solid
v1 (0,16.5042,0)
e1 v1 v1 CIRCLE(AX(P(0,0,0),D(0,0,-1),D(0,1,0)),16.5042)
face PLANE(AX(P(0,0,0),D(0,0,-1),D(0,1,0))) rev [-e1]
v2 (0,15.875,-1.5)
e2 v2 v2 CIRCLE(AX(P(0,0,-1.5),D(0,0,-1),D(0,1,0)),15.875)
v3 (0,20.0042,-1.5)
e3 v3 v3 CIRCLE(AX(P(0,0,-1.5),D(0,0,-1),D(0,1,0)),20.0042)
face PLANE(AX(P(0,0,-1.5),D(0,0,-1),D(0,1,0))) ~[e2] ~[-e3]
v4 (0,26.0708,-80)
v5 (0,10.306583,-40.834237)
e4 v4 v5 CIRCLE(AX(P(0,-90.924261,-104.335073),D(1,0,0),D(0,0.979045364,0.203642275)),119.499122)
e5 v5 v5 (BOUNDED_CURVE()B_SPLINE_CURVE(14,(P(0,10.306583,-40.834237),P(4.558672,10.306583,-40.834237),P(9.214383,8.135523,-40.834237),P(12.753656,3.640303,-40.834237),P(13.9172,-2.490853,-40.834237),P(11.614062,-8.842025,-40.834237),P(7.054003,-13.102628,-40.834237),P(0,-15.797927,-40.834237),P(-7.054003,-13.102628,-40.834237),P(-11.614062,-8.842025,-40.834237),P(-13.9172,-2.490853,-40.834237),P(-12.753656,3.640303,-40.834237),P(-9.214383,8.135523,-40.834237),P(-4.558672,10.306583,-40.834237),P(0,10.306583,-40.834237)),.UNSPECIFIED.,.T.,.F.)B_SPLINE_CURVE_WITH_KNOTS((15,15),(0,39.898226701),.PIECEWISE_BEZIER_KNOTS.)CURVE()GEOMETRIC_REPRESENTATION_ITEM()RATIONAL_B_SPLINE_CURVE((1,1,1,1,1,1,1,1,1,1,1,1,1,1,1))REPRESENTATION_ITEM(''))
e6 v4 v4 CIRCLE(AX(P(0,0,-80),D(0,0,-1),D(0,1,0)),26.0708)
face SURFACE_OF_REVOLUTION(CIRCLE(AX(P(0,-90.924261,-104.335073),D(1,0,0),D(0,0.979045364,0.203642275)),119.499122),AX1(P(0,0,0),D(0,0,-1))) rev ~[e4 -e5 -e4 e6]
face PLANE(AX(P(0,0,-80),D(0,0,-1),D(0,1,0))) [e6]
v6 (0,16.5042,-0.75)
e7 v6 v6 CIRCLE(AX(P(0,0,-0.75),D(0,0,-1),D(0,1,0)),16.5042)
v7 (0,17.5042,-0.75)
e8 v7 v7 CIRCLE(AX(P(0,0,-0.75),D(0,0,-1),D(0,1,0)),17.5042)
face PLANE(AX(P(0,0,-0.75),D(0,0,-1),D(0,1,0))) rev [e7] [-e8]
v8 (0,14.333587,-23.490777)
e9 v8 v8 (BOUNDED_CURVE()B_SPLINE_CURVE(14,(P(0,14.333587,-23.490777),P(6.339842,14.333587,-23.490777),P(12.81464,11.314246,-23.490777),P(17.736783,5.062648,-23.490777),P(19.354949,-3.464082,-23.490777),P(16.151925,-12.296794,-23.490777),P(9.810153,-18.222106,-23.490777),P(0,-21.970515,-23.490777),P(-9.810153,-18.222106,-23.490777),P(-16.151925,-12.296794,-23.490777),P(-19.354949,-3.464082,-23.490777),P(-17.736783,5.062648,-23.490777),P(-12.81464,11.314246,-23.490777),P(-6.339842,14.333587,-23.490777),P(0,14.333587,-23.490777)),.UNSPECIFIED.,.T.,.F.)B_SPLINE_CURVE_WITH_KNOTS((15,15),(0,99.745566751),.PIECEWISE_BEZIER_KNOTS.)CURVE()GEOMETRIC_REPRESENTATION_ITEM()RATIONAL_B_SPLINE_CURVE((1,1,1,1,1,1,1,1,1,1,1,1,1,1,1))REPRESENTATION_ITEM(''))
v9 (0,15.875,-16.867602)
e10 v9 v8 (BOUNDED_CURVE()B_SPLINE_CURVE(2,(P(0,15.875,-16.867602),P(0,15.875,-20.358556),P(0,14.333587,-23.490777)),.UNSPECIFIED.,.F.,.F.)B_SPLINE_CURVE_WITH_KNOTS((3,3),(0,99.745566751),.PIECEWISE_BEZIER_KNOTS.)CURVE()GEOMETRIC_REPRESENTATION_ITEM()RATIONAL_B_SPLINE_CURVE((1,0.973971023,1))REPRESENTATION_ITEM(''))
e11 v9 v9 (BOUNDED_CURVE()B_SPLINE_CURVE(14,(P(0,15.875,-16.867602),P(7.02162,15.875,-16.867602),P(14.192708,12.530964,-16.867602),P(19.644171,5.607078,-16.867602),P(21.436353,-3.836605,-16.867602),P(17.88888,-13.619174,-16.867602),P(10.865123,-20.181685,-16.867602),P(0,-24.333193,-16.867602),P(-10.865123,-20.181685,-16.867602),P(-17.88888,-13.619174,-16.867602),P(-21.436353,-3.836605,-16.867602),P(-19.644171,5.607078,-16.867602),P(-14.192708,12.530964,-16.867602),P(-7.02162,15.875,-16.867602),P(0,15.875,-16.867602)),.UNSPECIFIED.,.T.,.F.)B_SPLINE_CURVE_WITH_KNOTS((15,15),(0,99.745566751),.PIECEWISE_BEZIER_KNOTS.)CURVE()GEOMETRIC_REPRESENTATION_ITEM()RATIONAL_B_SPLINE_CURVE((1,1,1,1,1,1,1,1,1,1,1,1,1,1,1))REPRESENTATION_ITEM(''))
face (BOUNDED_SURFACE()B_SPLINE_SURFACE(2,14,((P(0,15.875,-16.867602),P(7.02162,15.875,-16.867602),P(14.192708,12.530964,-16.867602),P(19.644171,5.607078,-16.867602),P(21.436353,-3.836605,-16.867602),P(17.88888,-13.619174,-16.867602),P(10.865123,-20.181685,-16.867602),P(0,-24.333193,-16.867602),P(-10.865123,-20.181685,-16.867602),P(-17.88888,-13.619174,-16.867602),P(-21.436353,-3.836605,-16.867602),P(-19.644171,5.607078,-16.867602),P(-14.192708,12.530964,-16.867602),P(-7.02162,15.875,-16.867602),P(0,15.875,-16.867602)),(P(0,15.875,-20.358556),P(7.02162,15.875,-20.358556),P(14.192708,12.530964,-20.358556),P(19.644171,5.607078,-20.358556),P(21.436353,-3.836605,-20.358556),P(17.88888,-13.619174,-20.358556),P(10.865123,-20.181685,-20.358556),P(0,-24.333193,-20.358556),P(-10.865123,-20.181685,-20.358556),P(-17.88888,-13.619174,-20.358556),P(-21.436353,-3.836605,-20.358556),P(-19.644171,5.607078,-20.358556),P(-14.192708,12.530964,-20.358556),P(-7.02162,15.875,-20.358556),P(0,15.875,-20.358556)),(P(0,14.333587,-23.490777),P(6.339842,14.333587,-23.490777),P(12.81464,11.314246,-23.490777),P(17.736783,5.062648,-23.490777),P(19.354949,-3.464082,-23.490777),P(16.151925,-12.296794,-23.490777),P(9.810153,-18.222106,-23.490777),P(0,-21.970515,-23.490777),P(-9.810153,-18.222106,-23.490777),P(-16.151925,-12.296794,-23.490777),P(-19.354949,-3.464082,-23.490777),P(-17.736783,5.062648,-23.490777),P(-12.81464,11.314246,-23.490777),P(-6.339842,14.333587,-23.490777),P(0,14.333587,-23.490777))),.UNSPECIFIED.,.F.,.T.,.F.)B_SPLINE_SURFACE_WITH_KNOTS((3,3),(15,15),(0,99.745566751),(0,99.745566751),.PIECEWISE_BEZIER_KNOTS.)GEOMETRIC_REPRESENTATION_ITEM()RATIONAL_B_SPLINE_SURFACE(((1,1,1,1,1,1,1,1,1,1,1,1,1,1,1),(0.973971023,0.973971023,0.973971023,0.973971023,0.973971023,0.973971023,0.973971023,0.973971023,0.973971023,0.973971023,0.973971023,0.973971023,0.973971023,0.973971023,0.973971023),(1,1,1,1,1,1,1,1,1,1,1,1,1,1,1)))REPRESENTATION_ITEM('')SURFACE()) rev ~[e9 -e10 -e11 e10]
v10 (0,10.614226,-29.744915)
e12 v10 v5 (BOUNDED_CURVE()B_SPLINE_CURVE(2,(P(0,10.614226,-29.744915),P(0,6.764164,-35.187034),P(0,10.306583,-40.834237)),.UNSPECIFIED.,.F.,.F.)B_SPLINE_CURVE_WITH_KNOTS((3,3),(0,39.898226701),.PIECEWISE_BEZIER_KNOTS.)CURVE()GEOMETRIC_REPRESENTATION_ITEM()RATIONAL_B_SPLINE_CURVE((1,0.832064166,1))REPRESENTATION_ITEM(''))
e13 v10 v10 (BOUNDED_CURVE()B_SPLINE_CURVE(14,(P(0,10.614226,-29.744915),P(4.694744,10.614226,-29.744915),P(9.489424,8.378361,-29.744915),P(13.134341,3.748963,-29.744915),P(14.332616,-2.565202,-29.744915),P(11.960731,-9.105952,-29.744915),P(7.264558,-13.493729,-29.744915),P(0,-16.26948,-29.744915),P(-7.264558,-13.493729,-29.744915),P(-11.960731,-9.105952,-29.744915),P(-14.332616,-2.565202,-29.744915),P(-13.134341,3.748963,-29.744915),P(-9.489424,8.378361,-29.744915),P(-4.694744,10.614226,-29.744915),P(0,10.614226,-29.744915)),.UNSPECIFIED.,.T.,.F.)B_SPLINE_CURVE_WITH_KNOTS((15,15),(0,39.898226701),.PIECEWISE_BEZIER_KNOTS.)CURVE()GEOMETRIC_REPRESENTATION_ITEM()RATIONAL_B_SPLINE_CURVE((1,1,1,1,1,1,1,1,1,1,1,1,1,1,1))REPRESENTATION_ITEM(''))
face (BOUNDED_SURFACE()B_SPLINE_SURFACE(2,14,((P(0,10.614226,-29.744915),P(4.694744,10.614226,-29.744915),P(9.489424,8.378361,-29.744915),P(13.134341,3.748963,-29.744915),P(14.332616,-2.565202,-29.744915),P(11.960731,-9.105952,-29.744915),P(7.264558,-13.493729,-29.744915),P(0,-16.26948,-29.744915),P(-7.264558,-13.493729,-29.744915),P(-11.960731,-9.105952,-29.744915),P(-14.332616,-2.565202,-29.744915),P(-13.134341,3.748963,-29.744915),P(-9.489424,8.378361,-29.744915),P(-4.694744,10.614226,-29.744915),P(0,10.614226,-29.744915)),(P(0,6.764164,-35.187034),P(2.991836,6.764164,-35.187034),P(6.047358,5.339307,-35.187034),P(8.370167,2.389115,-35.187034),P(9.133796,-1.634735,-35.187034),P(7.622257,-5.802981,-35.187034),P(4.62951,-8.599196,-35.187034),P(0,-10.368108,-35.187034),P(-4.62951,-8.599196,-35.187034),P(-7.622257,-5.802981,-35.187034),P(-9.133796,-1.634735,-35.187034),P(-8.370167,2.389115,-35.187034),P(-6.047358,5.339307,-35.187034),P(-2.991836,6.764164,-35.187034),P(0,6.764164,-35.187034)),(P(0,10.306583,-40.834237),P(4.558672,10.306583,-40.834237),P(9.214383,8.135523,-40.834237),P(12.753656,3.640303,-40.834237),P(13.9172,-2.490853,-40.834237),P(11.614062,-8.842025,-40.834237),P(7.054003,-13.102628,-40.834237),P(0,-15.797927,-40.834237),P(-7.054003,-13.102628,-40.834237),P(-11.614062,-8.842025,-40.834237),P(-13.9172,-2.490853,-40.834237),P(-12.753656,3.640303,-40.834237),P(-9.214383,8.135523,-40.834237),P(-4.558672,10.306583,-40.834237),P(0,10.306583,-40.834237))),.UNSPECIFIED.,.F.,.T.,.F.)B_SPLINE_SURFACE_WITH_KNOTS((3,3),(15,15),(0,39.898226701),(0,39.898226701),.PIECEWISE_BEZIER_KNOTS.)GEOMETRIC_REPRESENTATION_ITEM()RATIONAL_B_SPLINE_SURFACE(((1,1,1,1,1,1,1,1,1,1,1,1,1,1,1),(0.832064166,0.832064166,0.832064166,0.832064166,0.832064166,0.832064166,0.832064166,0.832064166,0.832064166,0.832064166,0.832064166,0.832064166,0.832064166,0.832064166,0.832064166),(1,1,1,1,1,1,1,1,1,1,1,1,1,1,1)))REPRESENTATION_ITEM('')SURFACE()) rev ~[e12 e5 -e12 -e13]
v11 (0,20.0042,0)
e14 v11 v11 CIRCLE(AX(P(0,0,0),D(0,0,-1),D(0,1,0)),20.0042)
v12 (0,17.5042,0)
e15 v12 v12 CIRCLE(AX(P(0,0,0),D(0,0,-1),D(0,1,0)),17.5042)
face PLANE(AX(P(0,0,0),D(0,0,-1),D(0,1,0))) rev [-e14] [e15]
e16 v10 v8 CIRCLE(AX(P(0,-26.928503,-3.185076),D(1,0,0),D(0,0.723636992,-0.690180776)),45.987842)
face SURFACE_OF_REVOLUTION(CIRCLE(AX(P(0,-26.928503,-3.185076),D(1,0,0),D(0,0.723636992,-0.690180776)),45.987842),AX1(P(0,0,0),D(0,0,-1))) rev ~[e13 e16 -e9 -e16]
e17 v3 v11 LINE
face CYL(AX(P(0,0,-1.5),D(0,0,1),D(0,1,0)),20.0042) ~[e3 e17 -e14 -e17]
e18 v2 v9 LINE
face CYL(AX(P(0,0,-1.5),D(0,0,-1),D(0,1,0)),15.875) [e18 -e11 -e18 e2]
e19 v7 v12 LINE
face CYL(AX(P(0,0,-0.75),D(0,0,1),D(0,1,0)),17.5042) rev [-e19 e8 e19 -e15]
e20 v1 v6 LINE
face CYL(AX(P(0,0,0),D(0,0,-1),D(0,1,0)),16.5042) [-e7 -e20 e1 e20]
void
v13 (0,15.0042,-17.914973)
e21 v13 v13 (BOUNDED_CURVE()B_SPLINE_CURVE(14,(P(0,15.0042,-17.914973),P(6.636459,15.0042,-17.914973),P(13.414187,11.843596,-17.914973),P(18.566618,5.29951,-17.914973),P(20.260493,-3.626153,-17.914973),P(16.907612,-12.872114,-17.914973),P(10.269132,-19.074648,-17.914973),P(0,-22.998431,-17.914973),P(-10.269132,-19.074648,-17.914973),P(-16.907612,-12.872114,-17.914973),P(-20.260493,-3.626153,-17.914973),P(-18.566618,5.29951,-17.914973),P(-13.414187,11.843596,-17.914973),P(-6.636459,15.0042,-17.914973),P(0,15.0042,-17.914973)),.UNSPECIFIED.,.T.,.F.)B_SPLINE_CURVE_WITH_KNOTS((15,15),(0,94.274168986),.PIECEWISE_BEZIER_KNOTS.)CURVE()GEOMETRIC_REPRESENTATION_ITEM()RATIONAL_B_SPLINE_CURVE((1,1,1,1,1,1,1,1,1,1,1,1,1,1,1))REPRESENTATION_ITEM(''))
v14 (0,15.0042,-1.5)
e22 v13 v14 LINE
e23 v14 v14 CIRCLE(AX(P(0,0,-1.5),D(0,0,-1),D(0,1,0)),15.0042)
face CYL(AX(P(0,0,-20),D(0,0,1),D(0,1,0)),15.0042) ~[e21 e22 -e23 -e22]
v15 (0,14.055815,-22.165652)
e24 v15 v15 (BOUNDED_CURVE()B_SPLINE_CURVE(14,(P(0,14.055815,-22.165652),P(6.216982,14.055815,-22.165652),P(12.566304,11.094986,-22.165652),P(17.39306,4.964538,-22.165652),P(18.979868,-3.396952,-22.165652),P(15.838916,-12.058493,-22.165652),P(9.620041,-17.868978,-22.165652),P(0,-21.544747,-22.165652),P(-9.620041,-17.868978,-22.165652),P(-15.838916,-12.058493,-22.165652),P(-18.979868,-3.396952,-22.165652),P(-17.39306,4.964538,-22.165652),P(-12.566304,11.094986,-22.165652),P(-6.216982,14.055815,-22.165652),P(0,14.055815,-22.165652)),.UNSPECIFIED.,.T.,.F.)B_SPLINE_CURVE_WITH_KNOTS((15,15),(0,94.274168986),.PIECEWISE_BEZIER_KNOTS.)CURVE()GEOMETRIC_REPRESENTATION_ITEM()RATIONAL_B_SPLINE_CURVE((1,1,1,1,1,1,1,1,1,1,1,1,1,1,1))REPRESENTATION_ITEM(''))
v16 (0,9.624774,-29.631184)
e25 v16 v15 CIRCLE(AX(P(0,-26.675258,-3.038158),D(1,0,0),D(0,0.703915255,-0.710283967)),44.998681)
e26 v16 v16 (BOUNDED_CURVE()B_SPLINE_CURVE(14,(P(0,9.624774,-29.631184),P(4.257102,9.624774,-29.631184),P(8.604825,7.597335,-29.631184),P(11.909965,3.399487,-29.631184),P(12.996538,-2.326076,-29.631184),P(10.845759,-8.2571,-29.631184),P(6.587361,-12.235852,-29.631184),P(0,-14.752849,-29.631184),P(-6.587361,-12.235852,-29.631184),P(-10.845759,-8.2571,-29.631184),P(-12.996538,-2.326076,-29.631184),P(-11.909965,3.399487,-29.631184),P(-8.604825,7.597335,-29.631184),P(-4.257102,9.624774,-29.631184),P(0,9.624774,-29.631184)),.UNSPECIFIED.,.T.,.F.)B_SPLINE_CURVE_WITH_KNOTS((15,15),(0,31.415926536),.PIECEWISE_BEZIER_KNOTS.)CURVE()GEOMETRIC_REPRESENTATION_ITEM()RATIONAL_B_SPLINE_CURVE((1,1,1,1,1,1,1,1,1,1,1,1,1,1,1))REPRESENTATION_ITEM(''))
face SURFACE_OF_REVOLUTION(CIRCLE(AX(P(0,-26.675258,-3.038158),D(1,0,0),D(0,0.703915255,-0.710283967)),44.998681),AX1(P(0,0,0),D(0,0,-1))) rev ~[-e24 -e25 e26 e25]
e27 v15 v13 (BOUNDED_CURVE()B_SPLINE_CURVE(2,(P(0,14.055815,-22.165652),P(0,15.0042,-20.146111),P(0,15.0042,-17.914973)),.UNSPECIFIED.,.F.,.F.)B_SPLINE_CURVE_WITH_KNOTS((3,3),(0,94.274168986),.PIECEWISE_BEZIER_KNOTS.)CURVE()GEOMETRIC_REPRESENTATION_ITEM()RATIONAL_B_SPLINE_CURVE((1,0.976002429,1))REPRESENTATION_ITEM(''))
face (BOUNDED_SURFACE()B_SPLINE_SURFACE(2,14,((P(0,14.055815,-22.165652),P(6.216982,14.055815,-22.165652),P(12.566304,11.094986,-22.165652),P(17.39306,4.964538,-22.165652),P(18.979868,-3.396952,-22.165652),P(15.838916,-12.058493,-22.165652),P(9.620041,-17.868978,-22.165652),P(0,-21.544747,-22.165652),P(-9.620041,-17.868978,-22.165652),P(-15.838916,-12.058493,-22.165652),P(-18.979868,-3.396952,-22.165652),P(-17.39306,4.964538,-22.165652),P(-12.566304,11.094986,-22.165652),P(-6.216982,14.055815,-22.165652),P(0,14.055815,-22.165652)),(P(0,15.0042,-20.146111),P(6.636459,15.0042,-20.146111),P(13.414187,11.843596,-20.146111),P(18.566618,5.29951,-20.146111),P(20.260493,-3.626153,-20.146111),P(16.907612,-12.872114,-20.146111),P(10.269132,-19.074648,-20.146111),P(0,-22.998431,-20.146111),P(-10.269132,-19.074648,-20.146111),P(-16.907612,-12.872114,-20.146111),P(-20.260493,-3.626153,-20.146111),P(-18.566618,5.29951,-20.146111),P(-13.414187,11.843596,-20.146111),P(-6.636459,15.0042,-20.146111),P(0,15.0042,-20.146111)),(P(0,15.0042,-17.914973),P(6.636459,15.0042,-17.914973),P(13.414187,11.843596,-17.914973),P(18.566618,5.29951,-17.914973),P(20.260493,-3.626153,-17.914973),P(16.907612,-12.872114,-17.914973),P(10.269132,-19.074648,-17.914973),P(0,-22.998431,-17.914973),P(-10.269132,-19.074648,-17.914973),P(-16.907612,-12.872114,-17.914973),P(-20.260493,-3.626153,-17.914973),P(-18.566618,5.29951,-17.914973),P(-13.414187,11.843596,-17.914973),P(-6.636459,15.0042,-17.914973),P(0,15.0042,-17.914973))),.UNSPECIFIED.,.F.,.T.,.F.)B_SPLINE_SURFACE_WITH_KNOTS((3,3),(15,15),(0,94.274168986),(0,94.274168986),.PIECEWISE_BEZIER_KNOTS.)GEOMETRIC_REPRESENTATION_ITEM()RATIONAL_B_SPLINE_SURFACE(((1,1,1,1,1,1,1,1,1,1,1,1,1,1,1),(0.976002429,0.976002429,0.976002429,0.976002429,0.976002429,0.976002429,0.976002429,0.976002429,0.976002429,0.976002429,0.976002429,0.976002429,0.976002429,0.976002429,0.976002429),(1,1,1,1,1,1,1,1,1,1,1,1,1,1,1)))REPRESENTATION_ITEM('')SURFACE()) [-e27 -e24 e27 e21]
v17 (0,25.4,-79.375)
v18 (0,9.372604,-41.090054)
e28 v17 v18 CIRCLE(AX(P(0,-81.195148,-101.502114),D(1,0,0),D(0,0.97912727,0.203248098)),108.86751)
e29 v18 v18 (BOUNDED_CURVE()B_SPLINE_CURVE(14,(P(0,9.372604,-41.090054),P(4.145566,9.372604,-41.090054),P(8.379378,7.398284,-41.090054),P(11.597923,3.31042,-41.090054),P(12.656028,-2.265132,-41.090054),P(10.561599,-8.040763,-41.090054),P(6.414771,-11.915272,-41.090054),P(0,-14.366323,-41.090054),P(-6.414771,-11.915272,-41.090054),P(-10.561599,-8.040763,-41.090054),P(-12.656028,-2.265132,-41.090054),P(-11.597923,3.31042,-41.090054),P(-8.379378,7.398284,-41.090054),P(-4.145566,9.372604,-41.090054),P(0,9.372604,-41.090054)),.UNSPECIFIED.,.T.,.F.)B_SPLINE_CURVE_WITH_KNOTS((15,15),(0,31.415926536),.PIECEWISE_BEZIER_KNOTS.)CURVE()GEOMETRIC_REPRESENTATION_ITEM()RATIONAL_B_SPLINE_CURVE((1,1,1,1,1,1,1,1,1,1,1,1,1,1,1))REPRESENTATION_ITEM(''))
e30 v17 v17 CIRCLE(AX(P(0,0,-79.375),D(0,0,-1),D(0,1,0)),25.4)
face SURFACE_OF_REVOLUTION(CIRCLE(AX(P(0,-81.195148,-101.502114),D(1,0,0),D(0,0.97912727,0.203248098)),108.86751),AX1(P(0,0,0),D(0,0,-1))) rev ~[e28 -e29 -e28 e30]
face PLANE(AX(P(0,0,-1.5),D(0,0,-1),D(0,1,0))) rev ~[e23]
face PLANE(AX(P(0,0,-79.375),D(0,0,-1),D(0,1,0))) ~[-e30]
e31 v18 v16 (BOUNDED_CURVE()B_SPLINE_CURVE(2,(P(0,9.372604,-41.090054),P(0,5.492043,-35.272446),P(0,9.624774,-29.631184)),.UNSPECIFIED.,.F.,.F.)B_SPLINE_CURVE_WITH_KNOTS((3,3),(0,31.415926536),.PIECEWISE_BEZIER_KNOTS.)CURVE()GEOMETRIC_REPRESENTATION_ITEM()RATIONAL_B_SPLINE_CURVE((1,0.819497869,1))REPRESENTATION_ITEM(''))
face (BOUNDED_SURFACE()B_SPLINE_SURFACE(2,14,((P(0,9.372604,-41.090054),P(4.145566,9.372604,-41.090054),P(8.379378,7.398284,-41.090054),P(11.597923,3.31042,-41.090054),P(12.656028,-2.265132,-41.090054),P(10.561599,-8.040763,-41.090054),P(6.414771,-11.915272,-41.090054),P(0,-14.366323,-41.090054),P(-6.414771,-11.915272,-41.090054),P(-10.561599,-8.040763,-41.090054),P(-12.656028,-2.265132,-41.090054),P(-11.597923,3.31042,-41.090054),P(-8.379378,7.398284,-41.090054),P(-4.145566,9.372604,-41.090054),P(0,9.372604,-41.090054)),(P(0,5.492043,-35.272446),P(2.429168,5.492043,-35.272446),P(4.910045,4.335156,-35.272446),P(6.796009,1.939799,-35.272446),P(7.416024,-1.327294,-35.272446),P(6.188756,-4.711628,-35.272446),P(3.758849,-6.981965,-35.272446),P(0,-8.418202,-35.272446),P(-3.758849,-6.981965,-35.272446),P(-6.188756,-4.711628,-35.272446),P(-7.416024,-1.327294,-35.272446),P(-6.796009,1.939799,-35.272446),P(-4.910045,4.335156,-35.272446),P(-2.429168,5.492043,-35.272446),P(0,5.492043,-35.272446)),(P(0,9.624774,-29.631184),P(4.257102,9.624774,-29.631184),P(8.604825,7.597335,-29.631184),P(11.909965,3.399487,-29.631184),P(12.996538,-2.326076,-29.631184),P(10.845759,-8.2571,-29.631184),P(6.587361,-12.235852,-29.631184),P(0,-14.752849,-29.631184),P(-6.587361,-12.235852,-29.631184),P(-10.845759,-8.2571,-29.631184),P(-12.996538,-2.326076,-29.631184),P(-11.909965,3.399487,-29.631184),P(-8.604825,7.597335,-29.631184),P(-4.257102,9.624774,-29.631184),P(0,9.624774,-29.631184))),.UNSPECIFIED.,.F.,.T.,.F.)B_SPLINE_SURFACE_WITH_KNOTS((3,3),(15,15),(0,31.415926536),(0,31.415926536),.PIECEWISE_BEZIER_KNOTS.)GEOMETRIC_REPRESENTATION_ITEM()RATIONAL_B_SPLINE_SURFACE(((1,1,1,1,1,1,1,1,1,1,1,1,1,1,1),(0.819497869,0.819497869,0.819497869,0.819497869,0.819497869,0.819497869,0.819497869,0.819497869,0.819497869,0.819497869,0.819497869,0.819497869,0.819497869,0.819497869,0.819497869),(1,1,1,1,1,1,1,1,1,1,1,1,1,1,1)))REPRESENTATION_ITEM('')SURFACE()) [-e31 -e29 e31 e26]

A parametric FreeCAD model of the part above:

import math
import FreeCAD as App
import Part
import Sketcher

V = App.Vector


def edges_at(feature, points):
    """Names of the edges that pass closest to the given points."""
    edges = feature.Shape.Edges
    near = lambda p: min(range(len(edges)), key=lambda i: edges[i].distToShape(Part.Vertex(*p))[0])
    return sorted({f"Edge{near(p) + 1}" for p in points})

doc = App.newDocument("Part")
body = doc.addObject("PartDesign::Body", "Body")

# Sketch on YZ plane
sketch1 = body.newObject("Sketcher::SketchObject", "Sketch")
sketch1.AttachmentSupport = (doc.getObject("YZ_Plane"), [""])
sketch1.MapMode = "FlatFace"
sketch1.addGeometry([
    Part.LineSegment(V(16.5, 0, 0), V(0, 0, 0)),  # 0
    Part.LineSegment(V(0, 0, 0), V(0, -1.5, 0)),  # 1
    Part.LineSegment(V(0, -1.5, 0), V(15, -1.5, 0)),  # 2
    Part.LineSegment(V(15, -1.5, 0), V(15, -20, 0)),  # 3
    Part.ArcOfCircle(Part.Circle(V(-26.7, -3, 0), V(0, 0, 1), 45), math.radians(-45), math.radians(-22)),  # 4
    Part.ArcOfCircle(Part.Circle(V(-81.2, -101.5, 0), V(0, 0, 1), 108.9), math.radians(12), math.radians(38)),  # 5
    Part.LineSegment(V(25.4, -79.4, 0), V(0, -79.4, 0)),  # 6
    Part.LineSegment(V(0, -79.4, 0), V(0, -80, 0)),  # 7
    Part.LineSegment(V(0, -80, 0), V(26.1, -80, 0)),  # 8
    Part.ArcOfCircle(Part.Circle(V(-90.9, -104.3, 0), V(0, 0, 1), 119.5), math.radians(12), math.radians(36)),  # 9
    Part.ArcOfCircle(Part.Circle(V(-26.9, -3.2, 0), V(0, 0, 1), 46), math.radians(-44), math.radians(-21)),  # 10
    Part.LineSegment(V(15.9, -20, 0), V(15.9, -1.5, 0)),  # 11
    Part.LineSegment(V(15.9, -1.5, 0), V(20, -1.5, 0)),  # 12
    Part.LineSegment(V(20, -1.5, 0), V(20, 0, 0)),  # 13
    Part.LineSegment(V(20, 0, 0), V(17.5, 0, 0)),  # 14
    Part.LineSegment(V(17.5, 0, 0), V(17.5, -0.8, 0)),  # 15
    Part.LineSegment(V(17.5, -0.8, 0), V(16.5, -0.8, 0)),  # 16
    Part.LineSegment(V(16.5, -0.8, 0), V(16.5, 0, 0)),  # 17
], False)
sketch1.addConstraint([
    Sketcher.Constraint("Coincident", 0, 2, 1, 1),
    Sketcher.Constraint("Coincident", 1, 2, 2, 1),
    Sketcher.Constraint("Coincident", 2, 2, 3, 1),
    Sketcher.Constraint("Coincident", 3, 2, 4, 2),
    Sketcher.Constraint("Coincident", 4, 1, 5, 2),
    Sketcher.Constraint("Coincident", 5, 1, 6, 1),
    Sketcher.Constraint("Coincident", 6, 2, 7, 1),
    Sketcher.Constraint("Coincident", 7, 2, 8, 1),
    Sketcher.Constraint("Coincident", 8, 2, 9, 1),
    Sketcher.Constraint("Coincident", 9, 2, 10, 1),
    Sketcher.Constraint("Coincident", 10, 2, 11, 1),
    Sketcher.Constraint("Coincident", 11, 2, 12, 1),
    Sketcher.Constraint("Coincident", 12, 2, 13, 1),
    Sketcher.Constraint("Coincident", 13, 2, 14, 1),
    Sketcher.Constraint("Coincident", 14, 2, 15, 1),
    Sketcher.Constraint("Coincident", 15, 2, 16, 1),
    Sketcher.Constraint("Coincident", 16, 2, 17, 1),
    Sketcher.Constraint("Coincident", 17, 2, 0, 1),
    Sketcher.Constraint("Horizontal", 0),
    Sketcher.Constraint("Vertical", 1),
    Sketcher.Constraint("Horizontal", 2),
    Sketcher.Constraint("Vertical", 3),
    Sketcher.Constraint("Horizontal", 6),
    Sketcher.Constraint("Vertical", 7),
    Sketcher.Constraint("Horizontal", 8),
    Sketcher.Constraint("Vertical", 11),
    Sketcher.Constraint("Horizontal", 12),
    Sketcher.Constraint("Vertical", 13),
    Sketcher.Constraint("Horizontal", 14),
    Sketcher.Constraint("Vertical", 15),
    Sketcher.Constraint("Horizontal", 16),
    Sketcher.Constraint("Vertical", 17),
    Sketcher.Constraint("Coincident", 0, 2, -1, 1),
    Sketcher.Constraint("PointOnObject", 6, 2, -2),
    Sketcher.Constraint("PointOnObject", 13, 2, -1),
    Sketcher.Constraint("Horizontal", 3, 2, 10, 2),
    Sketcher.Constraint("Horizontal", 2, 2, 11, 2),
    Sketcher.Constraint("DistanceX", -1, 1, 4, 1, 5.0),
    Sketcher.Constraint("DistanceY", 4, 1, -1, 1, 35.0),
    Sketcher.Constraint("DistanceY", 7, 2, -1, 1, 80.0),
    Sketcher.Constraint("DistanceX", 2, 2, 12, 2, 5.0),
    Sketcher.Constraint("DistanceX", 16, 2, 16, 1, 1.0),
    Sketcher.Constraint("DistanceX", 6, 2, 6, 1, 25.4),
    Sketcher.Constraint("DistanceX", 14, 2, 14, 1, 2.5),
    Sketcher.Constraint("DistanceY", 1, 2, 1, 1, 1.5),
    Sketcher.Constraint("DistanceY", 3, 2, 3, 1, 18.5),
    Sketcher.Constraint("Radius", 10, 45.988),
    Sketcher.Constraint("DistanceY", 15, 2, 15, 1, 0.75),
    Sketcher.Constraint("Radius", 4, 44.9987),
    Sketcher.Constraint("Radius", 5, 108.8671),
    Sketcher.Constraint("Radius", 9, 119.4991),
    Sketcher.Constraint("DistanceY", 7, 2, 7, 1, 0.625),
    Sketcher.Constraint("DistanceX", -1, 1, 9, 2, 6.35),
    Sketcher.Constraint("DistanceY", 9, 3, 10, 3, 101.15),
    Sketcher.Constraint("DistanceX", 0, 2, 0, 1, 16.5042),
    Sketcher.Constraint("DistanceX", 8, 1, 8, 2, 26.0708),
    Sketcher.Constraint("DistanceX", 12, 1, 12, 2, 4.1292),
])
revolution = body.newObject("PartDesign::Revolution", "Revolution")
revolution.Profile = sketch1
revolution.ReferenceAxis = (sketch1, ["V_Axis"])
revolution.Angle = 360
doc.recompute()

fillet = body.newObject("PartDesign::Fillet", "Fillet")
fillet.Base = (revolution, edges_at(revolution, [(0, -15.875, -20)]))
fillet.Radius = 15
doc.recompute()

fillet2 = body.newObject("PartDesign::Fillet", "Fillet001")
fillet2.Base = (fillet, edges_at(fillet, [(0, -6.35, -34.925)]))
fillet2.Radius = 10
doc.recompute()

fillet3 = body.newObject("PartDesign::Fillet", "Fillet002")
fillet3.Base = (fillet2, edges_at(fillet2, [(0, -5, -35)]))
fillet3.Radius = 10
doc.recompute()

fillet4 = body.newObject("PartDesign::Fillet", "Fillet003")
fillet4.Base = (fillet3, edges_at(fillet3, [(0, -15.004, -20)]))
fillet4.Radius = 10

doc.recompute()
